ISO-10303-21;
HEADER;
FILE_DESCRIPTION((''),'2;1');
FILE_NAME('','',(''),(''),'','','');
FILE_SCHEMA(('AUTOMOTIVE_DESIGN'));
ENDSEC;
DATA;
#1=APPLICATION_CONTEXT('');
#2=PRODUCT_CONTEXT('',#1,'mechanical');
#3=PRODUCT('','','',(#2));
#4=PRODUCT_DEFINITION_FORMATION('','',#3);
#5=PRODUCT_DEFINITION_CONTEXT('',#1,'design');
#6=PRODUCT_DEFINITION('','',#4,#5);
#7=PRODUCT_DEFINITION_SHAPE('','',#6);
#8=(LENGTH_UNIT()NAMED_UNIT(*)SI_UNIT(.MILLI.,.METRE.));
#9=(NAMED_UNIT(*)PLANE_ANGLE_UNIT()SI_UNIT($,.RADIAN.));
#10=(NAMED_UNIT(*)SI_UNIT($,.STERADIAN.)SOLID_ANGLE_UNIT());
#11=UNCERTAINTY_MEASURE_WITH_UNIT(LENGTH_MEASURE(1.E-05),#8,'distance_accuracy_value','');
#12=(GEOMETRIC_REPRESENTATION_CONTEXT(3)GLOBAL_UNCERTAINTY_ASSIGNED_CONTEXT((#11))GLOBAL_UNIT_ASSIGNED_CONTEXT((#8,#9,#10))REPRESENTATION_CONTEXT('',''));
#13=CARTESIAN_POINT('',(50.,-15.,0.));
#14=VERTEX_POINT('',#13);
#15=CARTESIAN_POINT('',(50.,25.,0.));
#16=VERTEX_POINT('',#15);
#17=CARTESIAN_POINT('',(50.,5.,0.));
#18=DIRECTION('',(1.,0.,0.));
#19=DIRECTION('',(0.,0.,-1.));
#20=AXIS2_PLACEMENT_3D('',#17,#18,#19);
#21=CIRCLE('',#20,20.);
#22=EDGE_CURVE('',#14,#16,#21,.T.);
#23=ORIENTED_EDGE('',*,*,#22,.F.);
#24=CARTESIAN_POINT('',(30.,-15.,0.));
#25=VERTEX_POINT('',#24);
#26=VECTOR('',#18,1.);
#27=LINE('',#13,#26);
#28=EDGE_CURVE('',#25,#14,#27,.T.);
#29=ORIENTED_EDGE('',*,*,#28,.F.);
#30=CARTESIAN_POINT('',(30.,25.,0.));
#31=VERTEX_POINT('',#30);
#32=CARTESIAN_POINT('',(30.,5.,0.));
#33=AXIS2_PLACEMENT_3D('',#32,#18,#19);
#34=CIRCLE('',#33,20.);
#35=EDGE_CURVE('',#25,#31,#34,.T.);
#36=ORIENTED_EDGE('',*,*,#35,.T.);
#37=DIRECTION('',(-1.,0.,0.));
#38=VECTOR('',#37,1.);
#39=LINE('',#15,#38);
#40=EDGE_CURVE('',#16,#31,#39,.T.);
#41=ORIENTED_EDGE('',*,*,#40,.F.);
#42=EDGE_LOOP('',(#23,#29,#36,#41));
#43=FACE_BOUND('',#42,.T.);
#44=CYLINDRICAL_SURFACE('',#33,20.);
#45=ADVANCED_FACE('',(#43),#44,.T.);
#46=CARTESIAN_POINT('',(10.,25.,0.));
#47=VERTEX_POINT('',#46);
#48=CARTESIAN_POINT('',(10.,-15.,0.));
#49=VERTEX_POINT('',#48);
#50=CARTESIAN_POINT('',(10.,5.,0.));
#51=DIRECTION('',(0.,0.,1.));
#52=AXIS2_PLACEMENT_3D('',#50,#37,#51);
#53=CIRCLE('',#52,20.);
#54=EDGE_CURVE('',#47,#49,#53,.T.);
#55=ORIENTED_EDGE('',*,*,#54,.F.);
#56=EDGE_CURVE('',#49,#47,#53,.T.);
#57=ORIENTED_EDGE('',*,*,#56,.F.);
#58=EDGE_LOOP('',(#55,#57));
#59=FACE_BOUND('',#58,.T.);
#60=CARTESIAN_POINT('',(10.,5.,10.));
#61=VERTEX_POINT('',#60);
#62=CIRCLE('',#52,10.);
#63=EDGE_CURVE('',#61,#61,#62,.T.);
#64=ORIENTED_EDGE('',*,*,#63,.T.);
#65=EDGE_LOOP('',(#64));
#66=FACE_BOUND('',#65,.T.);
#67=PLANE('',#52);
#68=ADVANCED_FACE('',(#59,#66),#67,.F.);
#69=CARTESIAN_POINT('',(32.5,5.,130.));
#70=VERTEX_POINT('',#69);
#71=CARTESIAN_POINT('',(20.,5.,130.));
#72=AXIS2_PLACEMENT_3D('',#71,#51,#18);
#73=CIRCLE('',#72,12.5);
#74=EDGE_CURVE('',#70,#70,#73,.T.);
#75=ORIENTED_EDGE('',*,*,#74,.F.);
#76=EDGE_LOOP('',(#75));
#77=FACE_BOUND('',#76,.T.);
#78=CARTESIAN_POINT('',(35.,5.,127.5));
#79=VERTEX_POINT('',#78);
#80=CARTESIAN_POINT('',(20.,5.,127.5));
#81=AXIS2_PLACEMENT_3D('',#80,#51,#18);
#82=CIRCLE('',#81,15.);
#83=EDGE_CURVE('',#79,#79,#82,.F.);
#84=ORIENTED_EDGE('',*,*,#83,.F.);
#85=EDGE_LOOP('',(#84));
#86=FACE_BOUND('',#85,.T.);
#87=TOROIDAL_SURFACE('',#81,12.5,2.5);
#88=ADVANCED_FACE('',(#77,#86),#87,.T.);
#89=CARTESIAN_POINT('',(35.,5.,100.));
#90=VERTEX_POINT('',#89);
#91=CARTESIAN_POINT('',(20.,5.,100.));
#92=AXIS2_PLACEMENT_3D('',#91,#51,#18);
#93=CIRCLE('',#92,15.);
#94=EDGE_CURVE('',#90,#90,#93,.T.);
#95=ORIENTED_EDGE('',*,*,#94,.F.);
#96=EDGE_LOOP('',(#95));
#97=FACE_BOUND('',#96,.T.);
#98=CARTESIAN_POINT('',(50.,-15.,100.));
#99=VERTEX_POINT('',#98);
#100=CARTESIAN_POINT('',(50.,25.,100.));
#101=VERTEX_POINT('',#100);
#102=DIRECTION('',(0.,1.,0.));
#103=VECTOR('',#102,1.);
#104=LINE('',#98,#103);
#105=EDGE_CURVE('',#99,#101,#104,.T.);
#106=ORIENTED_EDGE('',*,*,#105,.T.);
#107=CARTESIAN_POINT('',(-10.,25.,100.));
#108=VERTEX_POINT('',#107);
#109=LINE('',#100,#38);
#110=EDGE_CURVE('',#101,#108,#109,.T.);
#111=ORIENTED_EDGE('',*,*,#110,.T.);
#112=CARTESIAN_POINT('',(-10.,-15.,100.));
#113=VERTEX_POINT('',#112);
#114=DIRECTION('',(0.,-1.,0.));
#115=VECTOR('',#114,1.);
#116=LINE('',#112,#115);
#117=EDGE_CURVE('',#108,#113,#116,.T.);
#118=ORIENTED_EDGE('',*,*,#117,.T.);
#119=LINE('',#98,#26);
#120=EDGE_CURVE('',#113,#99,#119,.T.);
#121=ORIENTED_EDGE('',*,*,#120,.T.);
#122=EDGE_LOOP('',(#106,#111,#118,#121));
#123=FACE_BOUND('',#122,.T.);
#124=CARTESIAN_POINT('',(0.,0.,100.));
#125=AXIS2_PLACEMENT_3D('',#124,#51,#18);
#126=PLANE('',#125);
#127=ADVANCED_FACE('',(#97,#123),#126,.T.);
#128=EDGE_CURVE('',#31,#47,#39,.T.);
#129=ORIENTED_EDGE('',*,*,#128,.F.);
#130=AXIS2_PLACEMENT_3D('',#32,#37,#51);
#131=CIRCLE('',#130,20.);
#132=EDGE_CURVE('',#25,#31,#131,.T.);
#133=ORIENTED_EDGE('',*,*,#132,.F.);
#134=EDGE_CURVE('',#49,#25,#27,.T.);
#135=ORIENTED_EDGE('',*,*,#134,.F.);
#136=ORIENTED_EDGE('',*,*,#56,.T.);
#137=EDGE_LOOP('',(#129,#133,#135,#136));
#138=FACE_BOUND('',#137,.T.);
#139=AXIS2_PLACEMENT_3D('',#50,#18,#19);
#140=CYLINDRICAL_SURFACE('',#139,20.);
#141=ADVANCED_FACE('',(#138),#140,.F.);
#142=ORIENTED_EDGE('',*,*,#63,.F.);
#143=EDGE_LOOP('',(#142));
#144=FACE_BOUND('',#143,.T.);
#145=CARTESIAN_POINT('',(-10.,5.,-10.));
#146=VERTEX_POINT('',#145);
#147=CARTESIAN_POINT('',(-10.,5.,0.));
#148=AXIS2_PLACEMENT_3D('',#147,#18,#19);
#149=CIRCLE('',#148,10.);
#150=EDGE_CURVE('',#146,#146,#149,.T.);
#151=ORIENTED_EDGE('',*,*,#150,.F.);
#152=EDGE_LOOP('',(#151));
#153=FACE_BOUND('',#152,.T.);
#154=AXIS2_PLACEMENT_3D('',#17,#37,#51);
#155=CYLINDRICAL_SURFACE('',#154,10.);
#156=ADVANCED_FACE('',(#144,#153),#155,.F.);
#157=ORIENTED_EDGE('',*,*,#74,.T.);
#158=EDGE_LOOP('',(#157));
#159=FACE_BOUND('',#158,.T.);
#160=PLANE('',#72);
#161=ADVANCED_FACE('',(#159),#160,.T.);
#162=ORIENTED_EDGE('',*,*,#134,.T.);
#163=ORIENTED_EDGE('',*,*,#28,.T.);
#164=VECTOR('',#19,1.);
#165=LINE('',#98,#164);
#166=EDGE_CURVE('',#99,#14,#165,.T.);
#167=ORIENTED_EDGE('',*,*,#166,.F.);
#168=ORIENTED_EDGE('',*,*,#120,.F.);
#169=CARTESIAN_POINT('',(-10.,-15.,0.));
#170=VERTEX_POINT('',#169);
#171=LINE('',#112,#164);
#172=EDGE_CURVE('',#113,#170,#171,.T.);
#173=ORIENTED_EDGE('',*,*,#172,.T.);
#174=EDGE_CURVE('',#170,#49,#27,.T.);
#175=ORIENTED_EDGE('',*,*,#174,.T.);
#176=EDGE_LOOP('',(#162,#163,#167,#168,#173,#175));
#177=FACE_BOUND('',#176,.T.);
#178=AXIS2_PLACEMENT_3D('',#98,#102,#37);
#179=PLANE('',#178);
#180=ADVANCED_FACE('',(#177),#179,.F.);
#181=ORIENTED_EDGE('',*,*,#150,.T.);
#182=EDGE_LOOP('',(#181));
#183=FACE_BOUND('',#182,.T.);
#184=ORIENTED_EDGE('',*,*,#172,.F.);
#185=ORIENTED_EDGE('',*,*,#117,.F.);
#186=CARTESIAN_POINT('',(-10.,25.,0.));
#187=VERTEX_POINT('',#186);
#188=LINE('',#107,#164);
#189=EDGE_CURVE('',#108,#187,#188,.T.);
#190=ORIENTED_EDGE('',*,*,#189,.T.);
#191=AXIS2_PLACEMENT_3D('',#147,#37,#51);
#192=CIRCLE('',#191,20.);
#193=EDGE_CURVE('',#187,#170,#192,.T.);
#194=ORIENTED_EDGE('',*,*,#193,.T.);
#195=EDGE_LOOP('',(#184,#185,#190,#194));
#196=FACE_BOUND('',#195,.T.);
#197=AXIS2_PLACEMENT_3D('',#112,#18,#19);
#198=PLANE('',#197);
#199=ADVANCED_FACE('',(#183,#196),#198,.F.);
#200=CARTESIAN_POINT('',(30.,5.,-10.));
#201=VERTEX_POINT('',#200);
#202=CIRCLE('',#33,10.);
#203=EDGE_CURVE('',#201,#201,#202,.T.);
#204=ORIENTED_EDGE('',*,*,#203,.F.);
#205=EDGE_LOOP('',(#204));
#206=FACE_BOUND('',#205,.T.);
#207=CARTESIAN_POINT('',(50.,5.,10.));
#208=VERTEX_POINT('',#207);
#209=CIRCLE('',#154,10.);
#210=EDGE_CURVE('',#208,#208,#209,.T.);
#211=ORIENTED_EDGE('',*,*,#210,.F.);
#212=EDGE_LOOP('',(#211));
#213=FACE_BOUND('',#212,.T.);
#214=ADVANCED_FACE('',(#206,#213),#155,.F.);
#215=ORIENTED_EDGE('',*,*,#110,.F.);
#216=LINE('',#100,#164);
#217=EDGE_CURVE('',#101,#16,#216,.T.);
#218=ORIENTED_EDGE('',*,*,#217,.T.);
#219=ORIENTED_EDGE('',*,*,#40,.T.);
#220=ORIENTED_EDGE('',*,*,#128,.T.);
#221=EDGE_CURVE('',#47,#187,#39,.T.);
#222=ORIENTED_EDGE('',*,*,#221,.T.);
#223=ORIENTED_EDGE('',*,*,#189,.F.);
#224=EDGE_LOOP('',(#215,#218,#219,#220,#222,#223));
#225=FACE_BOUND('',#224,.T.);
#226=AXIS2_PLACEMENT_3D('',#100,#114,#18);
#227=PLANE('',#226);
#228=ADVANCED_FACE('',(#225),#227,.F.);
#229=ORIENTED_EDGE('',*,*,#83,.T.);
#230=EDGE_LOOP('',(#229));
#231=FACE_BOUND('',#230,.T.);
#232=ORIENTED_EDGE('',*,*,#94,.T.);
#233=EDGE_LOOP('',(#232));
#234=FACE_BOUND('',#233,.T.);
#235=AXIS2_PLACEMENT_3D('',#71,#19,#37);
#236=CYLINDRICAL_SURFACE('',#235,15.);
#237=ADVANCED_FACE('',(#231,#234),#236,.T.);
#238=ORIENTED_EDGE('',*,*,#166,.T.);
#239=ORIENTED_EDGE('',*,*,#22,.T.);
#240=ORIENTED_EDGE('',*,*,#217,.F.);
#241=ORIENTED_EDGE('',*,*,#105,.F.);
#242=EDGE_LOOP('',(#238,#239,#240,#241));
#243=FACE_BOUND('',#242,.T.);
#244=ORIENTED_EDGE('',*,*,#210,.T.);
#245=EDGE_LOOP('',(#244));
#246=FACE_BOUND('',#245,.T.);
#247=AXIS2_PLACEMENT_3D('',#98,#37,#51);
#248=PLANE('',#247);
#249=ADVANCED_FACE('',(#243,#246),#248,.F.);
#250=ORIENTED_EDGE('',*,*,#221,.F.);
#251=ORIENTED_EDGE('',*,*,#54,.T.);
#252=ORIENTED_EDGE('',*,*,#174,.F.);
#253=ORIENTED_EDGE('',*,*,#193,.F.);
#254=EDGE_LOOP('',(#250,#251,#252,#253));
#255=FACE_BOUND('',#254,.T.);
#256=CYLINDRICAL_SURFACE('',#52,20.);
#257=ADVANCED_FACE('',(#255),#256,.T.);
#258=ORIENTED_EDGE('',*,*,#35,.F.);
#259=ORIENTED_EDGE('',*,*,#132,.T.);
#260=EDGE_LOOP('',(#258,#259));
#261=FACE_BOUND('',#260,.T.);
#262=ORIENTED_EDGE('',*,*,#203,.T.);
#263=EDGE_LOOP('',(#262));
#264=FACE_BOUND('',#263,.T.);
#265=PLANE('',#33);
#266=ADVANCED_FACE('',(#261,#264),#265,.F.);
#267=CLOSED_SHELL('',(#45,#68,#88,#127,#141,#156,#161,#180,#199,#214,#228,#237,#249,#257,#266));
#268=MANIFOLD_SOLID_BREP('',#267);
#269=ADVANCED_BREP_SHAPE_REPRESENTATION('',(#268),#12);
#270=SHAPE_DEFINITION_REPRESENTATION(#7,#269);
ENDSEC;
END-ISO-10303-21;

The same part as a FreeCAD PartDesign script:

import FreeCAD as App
import Part
import Sketcher
Q = App.Units.Quantity


def edges_at(feature, points):
    """Names of the edges that pass closest to the given points."""
    edges = feature.Shape.Edges
    near = lambda p: min(range(len(edges)), key=lambda i: edges[i].distToShape(Part.Vertex(*p))[0])
    return sorted({f"Edge{near(p) + 1}" for p in points})


def add_polygon(sketch, points):
    """Adds a closed chain of lines whose ends are joined by coincident constraints."""
    first, n = sketch.GeometryCount, len(points)
    for a, b in zip(points, points[1:] + points[:1]):
        sketch.addGeometry(Part.LineSegment(App.Vector(*a, 0), App.Vector(*b, 0)), False)
    for i in range(n):
        sketch.addConstraint(Sketcher.Constraint("Coincident", first + i, 2, first + (i + 1) % n, 1))

doc = App.newDocument("Part")
body = doc.addObject("PartDesign::Body", "Body")

sketch1 = body.newObject("Sketcher::SketchObject", "Sketch")
sketch1.AttachmentSupport = (doc.getObject("XY_Plane"), [""])
sketch1.MapMode = "FlatFace"
add_polygon(sketch1, [(-10, 25), (-10, -15), (50, -15), (50, 25)])
sketch1.addConstraint([
    Sketcher.Constraint("Vertical", 0),
    Sketcher.Constraint("Horizontal", 1),
    Sketcher.Constraint("Vertical", 2),
    Sketcher.Constraint("Horizontal", 3),
    Sketcher.Constraint("DistanceX", 1, 1, 1, 2, Q("60 mm")),
    Sketcher.Constraint("DistanceY", 0, 2, 0, 1, Q("40 mm")),
    Sketcher.Constraint("DistanceX", 0, 2, -1, 1, Q("10 mm")),
    Sketcher.Constraint("DistanceY", 0, 2, -1, 1, Q("15 mm")),
])
pad1 = body.newObject("PartDesign::Pad", "Pad")
pad1.Profile = sketch1
pad1.Length = 100

sketch2 = body.newObject("Sketcher::SketchObject", "Sketch001")
sketch2.AttachmentSupport = (doc.getObject("YZ_Plane"), [""])
sketch2.MapMode = "FlatFace"
sketch2.AttachmentOffset = App.Placement(App.Vector(0, 0, 50), App.Rotation())
sketch2.addGeometry(Part.Circle(App.Vector(5, 0, 0), App.Vector(0, 0, 1), 20), False)
sketch2.addConstraint([
    Sketcher.Constraint("PointOnObject", 0, 3, -1),
    Sketcher.Constraint("Diameter", 0, Q("40 mm")),
    Sketcher.Constraint("DistanceX", -1, 1, 0, 3, Q("5 mm")),
])
pad2 = body.newObject("PartDesign::Pad", "Pad001")
pad2.Profile = sketch2
pad2.Length = 20
pad2.Reversed = True

sketch3 = body.newObject("Sketcher::SketchObject", "Sketch002")
sketch3.AttachmentSupport = (doc.getObject("YZ_Plane"), [""])
sketch3.MapMode = "FlatFace"
sketch3.AttachmentOffset = App.Placement(App.Vector(0, 0, 10), App.Rotation())
sketch3.addGeometry(Part.Circle(App.Vector(5, 0, 0), App.Vector(0, 0, 1), 20), False)
sketch3.addConstraint([
    Sketcher.Constraint("PointOnObject", 0, 3, -1),
    Sketcher.Constraint("Diameter", 0, Q("40 mm")),
    Sketcher.Constraint("DistanceX", -1, 1, 0, 3, Q("5 mm")),
])
pad3 = body.newObject("PartDesign::Pad", "Pad002")
pad3.Profile = sketch3
pad3.Length = 20
pad3.Reversed = True

sketch4 = body.newObject("Sketcher::SketchObject", "Sketch003")
sketch4.AttachmentSupport = (doc.getObject("YZ_Plane"), [""])
sketch4.MapMode = "FlatFace"
sketch4.AttachmentOffset = App.Placement(App.Vector(0, 0, -10), App.Rotation())
sketch4.addGeometry(Part.Circle(App.Vector(5, 0, 0), App.Vector(0, 0, 1), 10), False)
sketch4.addConstraint([
    Sketcher.Constraint("PointOnObject", 0, 3, -1),
    Sketcher.Constraint("Diameter", 0, Q("20 mm")),
    Sketcher.Constraint("DistanceX", -1, 1, 0, 3, Q("5 mm")),
])
pocket1 = body.newObject("PartDesign::Pocket", "Pocket")
pocket1.Profile = sketch4
pocket1.Type = "ThroughAll"
pocket1.Midplane = True

sketch5 = body.newObject("Sketcher::SketchObject", "Sketch004")
sketch5.AttachmentSupport = (doc.getObject("YZ_Plane"), [""])
sketch5.MapMode = "FlatFace"
sketch5.AttachmentOffset = App.Placement(App.Vector(0, 0, 30), App.Rotation())
sketch5.addGeometry(Part.Circle(App.Vector(5, 0, 0), App.Vector(0, 0, 1), 20), False)
sketch5.addConstraint([
    Sketcher.Constraint("PointOnObject", 0, 3, -1),
    Sketcher.Constraint("Diameter", 0, Q("40 mm")),
    Sketcher.Constraint("DistanceX", -1, 1, 0, 3, Q("5 mm")),
])
pocket2 = body.newObject("PartDesign::Pocket", "Pocket001")
pocket2.Profile = sketch5
pocket2.Length = 20

sketch6 = body.newObject("Sketcher::SketchObject", "Sketch005")
sketch6.AttachmentSupport = (doc.getObject("XY_Plane"), [""])
sketch6.MapMode = "FlatFace"
sketch6.AttachmentOffset = App.Placement(App.Vector(0, 0, 100), App.Rotation())
sketch6.addGeometry(Part.Circle(App.Vector(20, 5, 0), App.Vector(0, 0, 1), 15), False)
sketch6.addConstraint([
    Sketcher.Constraint("Diameter", 0, Q("30 mm")),
    Sketcher.Constraint("DistanceX", -1, 1, 0, 3, Q("20 mm")),
    Sketcher.Constraint("DistanceY", -1, 1, 0, 3, Q("5 mm")),
])
pad4 = body.newObject("PartDesign::Pad", "Pad003")
pad4.Profile = sketch6
pad4.Length = 30
doc.recompute()

fillet = body.newObject("PartDesign::Fillet", "Fillet")
fillet.Base = (pad4, edges_at(pad4, [(5, 5, 130)]))
fillet.Radius = 2.5

doc.recompute()
